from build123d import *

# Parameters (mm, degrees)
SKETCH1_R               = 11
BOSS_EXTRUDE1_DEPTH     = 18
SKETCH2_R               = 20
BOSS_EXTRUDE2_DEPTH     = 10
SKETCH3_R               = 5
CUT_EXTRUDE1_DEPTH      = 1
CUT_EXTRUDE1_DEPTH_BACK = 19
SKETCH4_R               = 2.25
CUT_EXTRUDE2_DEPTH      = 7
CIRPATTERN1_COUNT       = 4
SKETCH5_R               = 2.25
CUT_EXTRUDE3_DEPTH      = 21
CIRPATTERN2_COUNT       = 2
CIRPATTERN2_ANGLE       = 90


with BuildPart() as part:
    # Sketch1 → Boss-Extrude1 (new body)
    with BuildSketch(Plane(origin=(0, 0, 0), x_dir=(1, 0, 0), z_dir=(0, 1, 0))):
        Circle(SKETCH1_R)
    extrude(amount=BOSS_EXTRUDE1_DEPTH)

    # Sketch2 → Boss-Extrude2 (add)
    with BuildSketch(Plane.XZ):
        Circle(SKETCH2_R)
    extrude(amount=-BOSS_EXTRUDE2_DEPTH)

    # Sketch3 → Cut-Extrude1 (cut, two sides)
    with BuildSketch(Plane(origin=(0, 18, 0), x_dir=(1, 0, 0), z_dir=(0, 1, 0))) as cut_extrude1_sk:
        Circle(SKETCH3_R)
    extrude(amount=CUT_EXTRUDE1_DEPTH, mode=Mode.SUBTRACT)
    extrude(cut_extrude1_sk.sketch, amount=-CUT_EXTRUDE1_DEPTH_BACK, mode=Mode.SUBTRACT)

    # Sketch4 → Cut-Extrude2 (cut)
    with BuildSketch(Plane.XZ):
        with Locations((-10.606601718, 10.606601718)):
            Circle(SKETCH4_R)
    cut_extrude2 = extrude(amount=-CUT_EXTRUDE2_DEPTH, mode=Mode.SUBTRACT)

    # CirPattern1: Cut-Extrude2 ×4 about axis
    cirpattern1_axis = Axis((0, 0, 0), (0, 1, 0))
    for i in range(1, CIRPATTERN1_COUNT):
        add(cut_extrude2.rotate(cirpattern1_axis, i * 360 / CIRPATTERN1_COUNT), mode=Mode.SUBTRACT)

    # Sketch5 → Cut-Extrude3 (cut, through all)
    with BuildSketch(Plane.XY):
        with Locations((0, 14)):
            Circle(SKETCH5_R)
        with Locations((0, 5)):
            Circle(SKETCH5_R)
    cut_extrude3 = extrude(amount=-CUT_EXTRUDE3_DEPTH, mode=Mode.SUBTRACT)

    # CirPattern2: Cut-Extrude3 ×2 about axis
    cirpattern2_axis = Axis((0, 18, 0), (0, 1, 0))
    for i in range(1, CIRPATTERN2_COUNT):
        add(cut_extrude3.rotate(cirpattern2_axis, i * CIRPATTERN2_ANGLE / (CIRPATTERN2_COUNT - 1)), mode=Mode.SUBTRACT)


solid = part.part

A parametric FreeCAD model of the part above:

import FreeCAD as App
import Part
import Sketcher

doc = App.newDocument("Part")
body = doc.addObject("PartDesign::Body", "Body")

# Sketch on XZ plane
sketch1 = body.newObject("Sketcher::SketchObject", "Sketch")
sketch1.AttachmentSupport = (doc.getObject("XZ_Plane"), [""])
sketch1.MapMode = "FlatFace"
sketch1.addGeometry(Part.Circle(App.Vector(0, 0, 0), App.Vector(0, 0, 1), 11), False)
sketch1.addConstraint(Sketcher.Constraint("Coincident", 0, 3, -1, 1))
sketch1.addConstraint(Sketcher.Constraint("Diameter", 0, 22.0))
pad1 = body.newObject("PartDesign::Pad", "Pad")
pad1.Profile = sketch1
pad1.Length = 18
pad1.Reversed = True

# Sketch on XZ plane
sketch2 = body.newObject("Sketcher::SketchObject", "Sketch001")
sketch2.AttachmentSupport = (doc.getObject("XZ_Plane"), [""])
sketch2.MapMode = "FlatFace"
sketch2.addGeometry(Part.Circle(App.Vector(0, 0, 0), App.Vector(0, 0, 1), 20), False)
sketch2.addConstraint(Sketcher.Constraint("Coincident", 0, 3, -1, 1))
sketch2.addConstraint(Sketcher.Constraint("Diameter", 0, 40.0))
pad2 = body.newObject("PartDesign::Pad", "Pad001")
pad2.Profile = sketch2
pad2.Length = 10
pad2.Reversed = True

# Sketch on XZ plane
sketch3 = body.newObject("Sketcher::SketchObject", "Sketch002")
sketch3.AttachmentSupport = (doc.getObject("XZ_Plane"), [""])
sketch3.MapMode = "FlatFace"
sketch3.AttachmentOffset = App.Placement(App.Vector(0, 0, -18), App.Rotation())
sketch3.addGeometry(Part.Circle(App.Vector(0, 0, 0), App.Vector(0, 0, 1), 5), False)
sketch3.addConstraint(Sketcher.Constraint("Coincident", 0, 3, -1, 1))
sketch3.addConstraint(Sketcher.Constraint("Diameter", 0, 10.0))
pocket1 = body.newObject("PartDesign::Pocket", "Pocket")
pocket1.Profile = sketch3
pocket1.Type = "ThroughAll"
pocket1.Midplane = True

# Sketch on XZ plane
sketch4 = body.newObject("Sketcher::SketchObject", "Sketch003")
sketch4.AttachmentSupport = (doc.getObject("XZ_Plane"), [""])
sketch4.MapMode = "FlatFace"
sketch4.addGeometry(Part.Circle(App.Vector(-10.606602, 10.606602, 0), App.Vector(0, 0, 1), 2.25), False)
sketch4.addConstraint(Sketcher.Constraint("Diameter", 0, 4.5))
sketch4.addConstraint(Sketcher.Constraint("DistanceX", 0, 3, -1, 1, 10.606602))
sketch4.addConstraint(Sketcher.Constraint("DistanceY", -1, 1, 0, 3, 10.606602))
pocket2 = body.newObject("PartDesign::Pocket", "Pocket001")
pocket2.Profile = sketch4
pocket2.Length = 7
doc.recompute()

polarpattern = body.newObject("PartDesign::PolarPattern", "PolarPattern")
polarpattern.Originals = [pocket2]
polarpattern.Axis = (doc.getObject("Y_Axis"), [""])
polarpattern.Angle = 360
polarpattern.Occurrences = 4
body.Tip = polarpattern

# Sketch on XY plane
sketch5 = body.newObject("Sketcher::SketchObject", "Sketch004")
sketch5.AttachmentSupport = (doc.getObject("XY_Plane"), [""])
sketch5.MapMode = "FlatFace"
sketch5.addGeometry(Part.Circle(App.Vector(0, 14, 0), App.Vector(0, 0, 1), 2.25), False)
sketch5.addGeometry(Part.Circle(App.Vector(0, 5, 0), App.Vector(0, 0, 1), 2.25), False)
sketch5.addConstraint(Sketcher.Constraint("Equal", 0, 1))
sketch5.addConstraint(Sketcher.Constraint("PointOnObject", 0, 3, -2))
sketch5.addConstraint(Sketcher.Constraint("PointOnObject", 1, 3, -2))
sketch5.addConstraint(Sketcher.Constraint("Diameter", 0, 4.5))
sketch5.addConstraint(Sketcher.Constraint("DistanceY", -1, 1, 0, 3, 14.0))
sketch5.addConstraint(Sketcher.Constraint("DistanceY", -1, 1, 1, 3, 5.0))
pocket3 = body.newObject("PartDesign::Pocket", "Pocket002")
pocket3.Profile = sketch5
pocket3.Type = "ThroughAll"
doc.recompute()

polarpattern2 = body.newObject("PartDesign::PolarPattern", "PolarPattern001")
polarpattern2.Originals = [pocket3]
polarpattern2.Axis = (doc.getObject("Y_Axis"), [""])
polarpattern2.Angle = 90
polarpattern2.Occurrences = 2
body.Tip = polarpattern2

doc.recompute()
